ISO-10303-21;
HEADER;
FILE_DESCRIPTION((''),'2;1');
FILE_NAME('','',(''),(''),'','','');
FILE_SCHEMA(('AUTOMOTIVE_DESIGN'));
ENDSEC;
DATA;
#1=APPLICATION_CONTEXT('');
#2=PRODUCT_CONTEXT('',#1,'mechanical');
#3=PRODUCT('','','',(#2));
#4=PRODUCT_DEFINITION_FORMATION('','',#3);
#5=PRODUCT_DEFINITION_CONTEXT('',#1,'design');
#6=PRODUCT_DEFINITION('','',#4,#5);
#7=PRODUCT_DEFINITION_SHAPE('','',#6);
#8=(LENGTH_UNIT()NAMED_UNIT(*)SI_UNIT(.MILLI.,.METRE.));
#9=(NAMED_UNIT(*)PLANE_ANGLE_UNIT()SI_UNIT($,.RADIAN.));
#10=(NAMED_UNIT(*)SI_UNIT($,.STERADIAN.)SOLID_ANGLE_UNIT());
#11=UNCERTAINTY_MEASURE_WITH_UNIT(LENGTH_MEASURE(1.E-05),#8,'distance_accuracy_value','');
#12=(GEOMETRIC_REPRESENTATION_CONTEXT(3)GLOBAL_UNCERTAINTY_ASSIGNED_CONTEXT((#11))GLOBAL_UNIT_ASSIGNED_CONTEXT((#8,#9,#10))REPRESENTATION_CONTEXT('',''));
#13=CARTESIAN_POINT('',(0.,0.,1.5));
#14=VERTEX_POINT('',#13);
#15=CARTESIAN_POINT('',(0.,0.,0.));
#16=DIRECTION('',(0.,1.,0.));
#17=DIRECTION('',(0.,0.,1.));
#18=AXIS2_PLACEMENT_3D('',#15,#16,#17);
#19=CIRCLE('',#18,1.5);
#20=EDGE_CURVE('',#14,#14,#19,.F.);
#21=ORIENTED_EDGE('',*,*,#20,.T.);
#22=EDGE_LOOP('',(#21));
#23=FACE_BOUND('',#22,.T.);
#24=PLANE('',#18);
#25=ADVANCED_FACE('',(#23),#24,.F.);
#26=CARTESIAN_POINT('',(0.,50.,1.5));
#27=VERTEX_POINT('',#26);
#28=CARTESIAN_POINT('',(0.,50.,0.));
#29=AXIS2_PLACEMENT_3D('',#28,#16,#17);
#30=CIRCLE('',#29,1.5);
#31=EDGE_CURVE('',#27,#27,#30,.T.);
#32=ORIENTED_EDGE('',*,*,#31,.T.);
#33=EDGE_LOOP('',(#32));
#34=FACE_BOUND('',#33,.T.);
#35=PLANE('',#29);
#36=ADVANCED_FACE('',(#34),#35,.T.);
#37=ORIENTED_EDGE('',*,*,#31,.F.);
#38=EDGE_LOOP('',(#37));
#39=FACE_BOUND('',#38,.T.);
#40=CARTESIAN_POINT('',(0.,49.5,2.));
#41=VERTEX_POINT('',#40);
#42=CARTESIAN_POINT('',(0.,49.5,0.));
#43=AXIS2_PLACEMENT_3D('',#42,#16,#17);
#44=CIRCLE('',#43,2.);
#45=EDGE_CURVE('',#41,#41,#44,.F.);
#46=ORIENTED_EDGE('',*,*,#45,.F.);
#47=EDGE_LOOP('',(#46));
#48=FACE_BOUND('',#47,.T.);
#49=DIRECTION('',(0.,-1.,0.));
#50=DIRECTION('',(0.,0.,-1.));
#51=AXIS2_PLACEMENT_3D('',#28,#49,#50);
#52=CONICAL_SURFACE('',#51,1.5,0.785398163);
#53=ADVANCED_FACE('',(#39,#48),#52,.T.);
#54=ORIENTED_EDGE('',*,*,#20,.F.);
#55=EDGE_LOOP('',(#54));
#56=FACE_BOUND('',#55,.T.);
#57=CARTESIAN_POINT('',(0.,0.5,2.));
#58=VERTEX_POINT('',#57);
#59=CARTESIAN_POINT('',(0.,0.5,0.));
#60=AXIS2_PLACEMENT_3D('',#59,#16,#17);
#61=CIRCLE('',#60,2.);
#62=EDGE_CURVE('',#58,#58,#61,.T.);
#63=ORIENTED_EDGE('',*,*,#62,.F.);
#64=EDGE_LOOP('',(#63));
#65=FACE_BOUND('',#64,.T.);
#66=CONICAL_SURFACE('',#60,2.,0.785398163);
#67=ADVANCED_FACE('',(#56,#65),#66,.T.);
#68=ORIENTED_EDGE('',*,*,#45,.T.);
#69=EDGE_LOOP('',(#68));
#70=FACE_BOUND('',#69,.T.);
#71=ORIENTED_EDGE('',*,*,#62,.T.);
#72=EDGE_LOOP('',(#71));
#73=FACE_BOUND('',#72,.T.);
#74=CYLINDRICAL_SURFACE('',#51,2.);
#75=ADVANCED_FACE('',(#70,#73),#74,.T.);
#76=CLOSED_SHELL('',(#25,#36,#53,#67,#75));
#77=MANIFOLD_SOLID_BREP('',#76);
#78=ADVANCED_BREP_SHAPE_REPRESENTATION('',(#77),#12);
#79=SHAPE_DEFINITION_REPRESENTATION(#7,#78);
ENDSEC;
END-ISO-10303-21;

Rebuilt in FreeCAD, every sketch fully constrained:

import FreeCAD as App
import Part
import Sketcher

V = App.Vector


def edges_at(feature, points):
    """Names of the edges that pass closest to the given points."""
    edges = feature.Shape.Edges
    near = lambda p: min(range(len(edges)), key=lambda i: edges[i].distToShape(Part.Vertex(*p))[0])
    return sorted({f"Edge{near(p) + 1}" for p in points})

doc = App.newDocument("Part")
params = doc.addObject("Spreadsheet::Sheet", "Params")
for row, (alias, value) in enumerate([
    ("sketch1_diameter", "4 mm"),
    ("pad1_length", "50 mm"),
    ("chamfer_size", "0.5 mm"),
], start=1):
    params.set(f"A{row}", alias)
    params.set(f"B{row}", "=" + value)
    params.setAlias(f"B{row}", alias)

body = doc.addObject("PartDesign::Body", "Body")

# Sketch on XZ plane
sketch1 = doc.addObject("Sketcher::SketchObject", "Sketch")
body.addObject(sketch1)
sketch1.AttachmentSupport = (doc.XZ_Plane, [""])
sketch1.MapMode = "FlatFace"
sketch1.addGeometry(Part.Circle(V(0, 0, 0), V(0, 0, 1), 2), False)
sketch1.addConstraint([
    Sketcher.Constraint("Coincident", 0, 3, -1, 1),
    Sketcher.Constraint("Diameter", 0, 4.0),
])
sketch1.setExpression("Constraints[1]", "Params.sketch1_diameter")
pad1 = doc.addObject("PartDesign::Pad", "Pad")
body.addObject(pad1)
pad1.Profile = sketch1
pad1.setExpression("Length", "Params.pad1_length")
pad1.Reversed = True
doc.recompute()

chamfer = doc.addObject("PartDesign::Chamfer", "Chamfer")
body.addObject(chamfer)
chamfer.Base = (pad1, edges_at(pad1, [(-2, 0, 0), (-2, 50, 0)]))
chamfer.setExpression("Size", "Params.chamfer_size")

doc.recompute()
